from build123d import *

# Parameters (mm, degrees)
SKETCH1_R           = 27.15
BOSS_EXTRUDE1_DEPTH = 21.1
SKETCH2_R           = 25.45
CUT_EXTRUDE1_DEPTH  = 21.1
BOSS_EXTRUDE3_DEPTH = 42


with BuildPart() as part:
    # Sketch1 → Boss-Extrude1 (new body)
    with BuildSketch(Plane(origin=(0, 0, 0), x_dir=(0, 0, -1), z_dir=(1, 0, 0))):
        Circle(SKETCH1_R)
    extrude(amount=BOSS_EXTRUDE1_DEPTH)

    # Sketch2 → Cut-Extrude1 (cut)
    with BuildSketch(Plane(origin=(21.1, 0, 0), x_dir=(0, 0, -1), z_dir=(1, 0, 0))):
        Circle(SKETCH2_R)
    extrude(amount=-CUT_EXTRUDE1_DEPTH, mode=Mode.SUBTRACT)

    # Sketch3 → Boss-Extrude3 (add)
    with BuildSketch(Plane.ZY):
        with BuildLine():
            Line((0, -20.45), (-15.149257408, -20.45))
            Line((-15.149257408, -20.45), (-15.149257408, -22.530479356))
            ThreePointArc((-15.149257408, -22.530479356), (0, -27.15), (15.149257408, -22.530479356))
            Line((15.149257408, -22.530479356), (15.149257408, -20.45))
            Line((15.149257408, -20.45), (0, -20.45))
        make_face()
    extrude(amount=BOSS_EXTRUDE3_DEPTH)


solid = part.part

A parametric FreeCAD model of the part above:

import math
import FreeCAD as App
import Part
import Sketcher
from FreeCAD import Vector

doc = App.newDocument("Part")
body = doc.addObject("PartDesign::Body", "Body")

# Sketch on YZ plane
sketch1 = body.newObject("Sketcher::SketchObject", "Sketch")
sketch1.AttachmentSupport = (doc.getObject("YZ_Plane"), [""])
sketch1.MapMode = "FlatFace"
sketch1.addGeometry(Part.Circle(Vector(0, 0, 0), Vector(0, 0, 1), 27.15), False)
sketch1.addConstraint(Sketcher.Constraint("Coincident", 0, 3, -1, 1))
sketch1.addConstraint(Sketcher.Constraint("Diameter", 0, 54.3))
pad1 = body.newObject("PartDesign::Pad", "Pad")
pad1.Profile = sketch1
pad1.Length = 21.1

# Sketch on YZ plane
sketch2 = body.newObject("Sketcher::SketchObject", "Sketch001")
sketch2.AttachmentSupport = (doc.getObject("YZ_Plane"), [""])
sketch2.MapMode = "FlatFace"
sketch2.AttachmentOffset = App.Placement(Vector(0, 0, 21.1), App.Rotation())
sketch2.addGeometry(Part.Circle(Vector(0, 0, 0), Vector(0, 0, 1), 25.45), False)
sketch2.addConstraint(Sketcher.Constraint("Coincident", 0, 3, -1, 1))
sketch2.addConstraint(Sketcher.Constraint("Diameter", 0, 50.9))
pocket1 = body.newObject("PartDesign::Pocket", "Pocket")
pocket1.Profile = sketch2
pocket1.Length = 21.1

# Sketch on YZ plane
sketch3 = body.newObject("Sketcher::SketchObject", "Sketch002")
sketch3.AttachmentSupport = (doc.getObject("YZ_Plane"), [""])
sketch3.MapMode = "FlatFace"
sketch3.addGeometry(Part.LineSegment(Vector(-20.45, -15.149257, 0), Vector(-22.530479, -15.149257, 0)), False)
sketch3.addGeometry(Part.ArcOfCircle(Part.Circle(Vector(0, 0, 0), Vector(0, 0, 1), 27.15), math.radians(146.083529), math.radians(213.916471)), False)
sketch3.addGeometry(Part.LineSegment(Vector(-22.530479, 15.149257, 0), Vector(-20.45, 15.149257, 0)), False)
sketch3.addGeometry(Part.LineSegment(Vector(-20.45, 15.149257, 0), Vector(-20.45, -15.149257, 0)), False)
sketch3.addConstraint(Sketcher.Constraint("Coincident", 0, 2, 1, 2))
sketch3.addConstraint(Sketcher.Constraint("Coincident", 1, 1, 2, 1))
sketch3.addConstraint(Sketcher.Constraint("Coincident", 2, 2, 3, 1))
sketch3.addConstraint(Sketcher.Constraint("Coincident", 3, 2, 0, 1))
sketch3.addConstraint(Sketcher.Constraint("Horizontal", 0))
sketch3.addConstraint(Sketcher.Constraint("Horizontal", 2))
sketch3.addConstraint(Sketcher.Constraint("Vertical", 3))
sketch3.addConstraint(Sketcher.Constraint("Coincident", 1, 3, -1, 1))
sketch3.addConstraint(Sketcher.Constraint("Vertical", 0, 2, 1, 1))
sketch3.addConstraint(Sketcher.Constraint("Radius", 1, 27.15))
sketch3.addConstraint(Sketcher.Constraint("DistanceX", 2, 2, -1, 1, 20.45))
sketch3.addConstraint(Sketcher.Constraint("DistanceX", 0, 2, 0, 1, 2.080479))
pad2 = body.newObject("PartDesign::Pad", "Pad001")
pad2.Profile = sketch3
pad2.Length = 42
pad2.Reversed = True

doc.recompute()
